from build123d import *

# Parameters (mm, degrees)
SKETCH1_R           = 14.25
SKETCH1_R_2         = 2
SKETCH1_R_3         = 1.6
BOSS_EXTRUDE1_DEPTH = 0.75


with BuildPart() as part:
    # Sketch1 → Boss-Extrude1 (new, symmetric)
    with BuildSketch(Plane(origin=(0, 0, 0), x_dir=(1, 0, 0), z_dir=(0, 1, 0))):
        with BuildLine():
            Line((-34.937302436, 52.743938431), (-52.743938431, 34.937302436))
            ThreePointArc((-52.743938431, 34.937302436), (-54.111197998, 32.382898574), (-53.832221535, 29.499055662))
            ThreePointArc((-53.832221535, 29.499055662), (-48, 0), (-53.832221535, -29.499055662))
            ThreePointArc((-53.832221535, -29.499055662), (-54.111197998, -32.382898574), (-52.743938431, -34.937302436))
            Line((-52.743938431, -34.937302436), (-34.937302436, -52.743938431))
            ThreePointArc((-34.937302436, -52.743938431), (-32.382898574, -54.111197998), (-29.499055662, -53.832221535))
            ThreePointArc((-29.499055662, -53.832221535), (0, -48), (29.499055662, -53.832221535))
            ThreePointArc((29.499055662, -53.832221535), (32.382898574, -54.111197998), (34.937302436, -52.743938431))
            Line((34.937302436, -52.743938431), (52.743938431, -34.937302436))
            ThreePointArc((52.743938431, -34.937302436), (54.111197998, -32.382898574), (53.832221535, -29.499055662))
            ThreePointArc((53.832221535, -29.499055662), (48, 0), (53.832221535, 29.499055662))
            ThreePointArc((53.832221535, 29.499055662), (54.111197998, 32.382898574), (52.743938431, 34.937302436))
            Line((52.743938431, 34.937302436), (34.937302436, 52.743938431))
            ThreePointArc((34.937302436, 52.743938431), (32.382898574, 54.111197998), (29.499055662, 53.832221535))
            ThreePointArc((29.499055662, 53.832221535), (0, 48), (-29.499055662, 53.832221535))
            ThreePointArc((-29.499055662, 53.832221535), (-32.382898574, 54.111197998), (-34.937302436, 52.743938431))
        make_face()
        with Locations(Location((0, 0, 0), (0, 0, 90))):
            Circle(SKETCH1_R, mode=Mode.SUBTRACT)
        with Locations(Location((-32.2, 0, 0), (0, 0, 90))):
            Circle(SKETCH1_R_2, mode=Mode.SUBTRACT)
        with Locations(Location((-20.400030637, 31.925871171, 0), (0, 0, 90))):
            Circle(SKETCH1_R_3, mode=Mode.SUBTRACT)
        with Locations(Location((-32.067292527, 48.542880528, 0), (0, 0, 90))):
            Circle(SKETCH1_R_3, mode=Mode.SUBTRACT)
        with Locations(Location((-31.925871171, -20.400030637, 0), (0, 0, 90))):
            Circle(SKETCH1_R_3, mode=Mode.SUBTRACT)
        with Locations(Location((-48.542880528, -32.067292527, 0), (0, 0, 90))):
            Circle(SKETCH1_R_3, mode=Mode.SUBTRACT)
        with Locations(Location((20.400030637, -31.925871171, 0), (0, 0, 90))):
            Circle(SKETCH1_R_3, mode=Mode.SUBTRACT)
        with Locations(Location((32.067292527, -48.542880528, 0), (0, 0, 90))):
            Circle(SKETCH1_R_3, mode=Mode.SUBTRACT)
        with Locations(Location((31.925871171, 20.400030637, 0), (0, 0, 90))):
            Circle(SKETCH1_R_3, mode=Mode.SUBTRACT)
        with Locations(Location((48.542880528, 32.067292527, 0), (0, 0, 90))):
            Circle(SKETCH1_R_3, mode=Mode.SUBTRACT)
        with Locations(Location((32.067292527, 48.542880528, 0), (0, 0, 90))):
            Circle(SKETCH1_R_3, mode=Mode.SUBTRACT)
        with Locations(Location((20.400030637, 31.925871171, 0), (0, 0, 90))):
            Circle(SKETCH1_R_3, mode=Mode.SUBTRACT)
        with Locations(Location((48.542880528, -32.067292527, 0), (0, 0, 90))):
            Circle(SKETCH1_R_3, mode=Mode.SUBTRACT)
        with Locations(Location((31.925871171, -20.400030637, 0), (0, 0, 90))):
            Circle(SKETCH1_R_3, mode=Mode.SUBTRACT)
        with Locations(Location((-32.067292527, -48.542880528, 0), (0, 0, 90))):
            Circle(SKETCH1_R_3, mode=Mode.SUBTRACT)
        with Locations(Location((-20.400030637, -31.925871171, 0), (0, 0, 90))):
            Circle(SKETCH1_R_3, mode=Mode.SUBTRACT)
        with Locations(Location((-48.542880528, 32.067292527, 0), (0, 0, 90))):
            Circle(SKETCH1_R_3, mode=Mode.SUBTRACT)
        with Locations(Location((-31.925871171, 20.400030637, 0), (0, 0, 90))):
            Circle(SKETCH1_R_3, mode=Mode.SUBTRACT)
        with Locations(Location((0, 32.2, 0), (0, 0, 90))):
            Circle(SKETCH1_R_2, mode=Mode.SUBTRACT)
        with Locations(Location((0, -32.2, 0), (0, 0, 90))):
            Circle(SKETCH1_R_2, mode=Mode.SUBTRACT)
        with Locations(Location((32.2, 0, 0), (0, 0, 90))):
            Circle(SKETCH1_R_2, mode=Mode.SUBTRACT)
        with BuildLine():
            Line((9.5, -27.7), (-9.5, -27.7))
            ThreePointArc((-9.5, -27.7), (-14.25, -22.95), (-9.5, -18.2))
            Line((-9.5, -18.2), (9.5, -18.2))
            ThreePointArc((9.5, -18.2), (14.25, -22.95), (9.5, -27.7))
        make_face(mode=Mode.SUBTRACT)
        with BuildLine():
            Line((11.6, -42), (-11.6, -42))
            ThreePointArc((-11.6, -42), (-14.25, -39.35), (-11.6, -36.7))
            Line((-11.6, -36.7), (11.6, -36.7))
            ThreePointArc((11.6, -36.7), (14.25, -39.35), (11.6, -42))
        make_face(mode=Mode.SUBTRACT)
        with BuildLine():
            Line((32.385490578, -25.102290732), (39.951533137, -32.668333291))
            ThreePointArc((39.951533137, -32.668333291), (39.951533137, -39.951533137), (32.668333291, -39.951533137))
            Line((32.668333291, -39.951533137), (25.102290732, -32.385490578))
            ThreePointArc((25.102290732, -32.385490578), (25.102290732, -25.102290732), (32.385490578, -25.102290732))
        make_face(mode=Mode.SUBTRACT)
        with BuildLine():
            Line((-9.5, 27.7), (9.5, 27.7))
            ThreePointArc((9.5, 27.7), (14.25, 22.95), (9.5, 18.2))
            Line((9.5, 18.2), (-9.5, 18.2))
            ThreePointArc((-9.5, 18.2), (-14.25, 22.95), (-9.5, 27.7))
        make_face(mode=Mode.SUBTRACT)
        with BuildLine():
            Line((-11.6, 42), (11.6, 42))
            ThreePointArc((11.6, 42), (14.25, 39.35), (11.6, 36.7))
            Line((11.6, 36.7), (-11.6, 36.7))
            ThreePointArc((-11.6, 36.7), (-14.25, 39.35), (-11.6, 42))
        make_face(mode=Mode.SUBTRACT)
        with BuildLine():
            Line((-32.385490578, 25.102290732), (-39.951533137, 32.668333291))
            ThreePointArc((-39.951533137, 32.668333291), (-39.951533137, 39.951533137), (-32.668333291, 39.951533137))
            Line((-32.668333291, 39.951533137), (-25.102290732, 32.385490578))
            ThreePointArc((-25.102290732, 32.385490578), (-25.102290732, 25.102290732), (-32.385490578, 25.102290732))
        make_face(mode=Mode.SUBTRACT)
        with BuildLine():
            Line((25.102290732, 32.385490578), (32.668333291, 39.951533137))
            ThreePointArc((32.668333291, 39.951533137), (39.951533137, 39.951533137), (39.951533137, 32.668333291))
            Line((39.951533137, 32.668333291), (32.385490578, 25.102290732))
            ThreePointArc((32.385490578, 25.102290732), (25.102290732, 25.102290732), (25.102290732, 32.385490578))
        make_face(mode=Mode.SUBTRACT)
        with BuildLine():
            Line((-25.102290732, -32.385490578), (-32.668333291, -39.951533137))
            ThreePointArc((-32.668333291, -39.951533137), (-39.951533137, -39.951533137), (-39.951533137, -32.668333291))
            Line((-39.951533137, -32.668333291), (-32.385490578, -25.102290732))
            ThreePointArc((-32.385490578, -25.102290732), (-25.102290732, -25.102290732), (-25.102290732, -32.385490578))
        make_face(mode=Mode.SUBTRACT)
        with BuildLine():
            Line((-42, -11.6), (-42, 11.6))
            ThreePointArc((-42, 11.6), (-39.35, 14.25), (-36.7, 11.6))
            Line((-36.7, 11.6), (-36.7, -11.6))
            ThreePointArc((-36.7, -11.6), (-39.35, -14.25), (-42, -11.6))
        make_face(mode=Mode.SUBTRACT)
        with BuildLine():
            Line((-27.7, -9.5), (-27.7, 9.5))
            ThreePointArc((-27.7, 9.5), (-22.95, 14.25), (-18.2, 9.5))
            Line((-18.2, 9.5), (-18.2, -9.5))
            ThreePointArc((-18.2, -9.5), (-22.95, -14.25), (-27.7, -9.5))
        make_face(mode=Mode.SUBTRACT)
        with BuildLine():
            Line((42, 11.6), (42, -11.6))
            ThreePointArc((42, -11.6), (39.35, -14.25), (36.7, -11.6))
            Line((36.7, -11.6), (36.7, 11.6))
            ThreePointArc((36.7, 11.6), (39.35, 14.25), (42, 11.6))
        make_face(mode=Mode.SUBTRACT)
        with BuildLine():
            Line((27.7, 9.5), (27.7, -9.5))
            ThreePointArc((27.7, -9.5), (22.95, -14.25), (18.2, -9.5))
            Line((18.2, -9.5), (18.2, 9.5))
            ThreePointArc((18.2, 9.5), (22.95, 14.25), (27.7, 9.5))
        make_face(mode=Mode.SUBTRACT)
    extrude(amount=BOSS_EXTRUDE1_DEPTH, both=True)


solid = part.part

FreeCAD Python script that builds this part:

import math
import FreeCAD as App
import Part
import Sketcher
Q = App.Units.Quantity

doc = App.newDocument("Part")
body = doc.addObject("PartDesign::Body", "Body")

# Sketch on XZ plane
sketch1 = body.newObject("Sketcher::SketchObject", "Sketch")
sketch1.AttachmentSupport = (doc.getObject("XZ_Plane"), [""])
sketch1.MapMode = "FlatFace"
sketch1.addGeometry(Part.LineSegment(App.Vector(-34.9, -52.7, 0), App.Vector(-52.7, -34.9, 0)), False)
sketch1.addGeometry(Part.ArcOfCircle(Part.Circle(App.Vector(-49.2, -31.4, 0), App.Vector(0, 0, 1), 5), math.radians(158), math.radians(225)), False)
sketch1.addGeometry(Part.ArcOfCircle(Part.Circle(App.Vector(-125.5, 0, 0), App.Vector(0, 0, 1), 77.5), math.radians(-22), math.radians(22)), False)
sketch1.addGeometry(Part.ArcOfCircle(Part.Circle(App.Vector(-49.2, 31.4, 0), App.Vector(0, 0, 1), 5), math.radians(135), math.radians(202)), False)
sketch1.addGeometry(Part.LineSegment(App.Vector(-52.7, 34.9, 0), App.Vector(-34.9, 52.7, 0)), False)
sketch1.addGeometry(Part.ArcOfCircle(Part.Circle(App.Vector(-31.4, 49.2, 0), App.Vector(0, 0, 1), 5), math.radians(68), math.radians(135)), False)
sketch1.addGeometry(Part.ArcOfCircle(Part.Circle(App.Vector(0, 125.5, 0), App.Vector(0, 0, 1), 77.5), math.radians(-112), math.radians(-68)), False)
sketch1.addGeometry(Part.ArcOfCircle(Part.Circle(App.Vector(31.4, 49.2, 0), App.Vector(0, 0, 1), 5), math.radians(45), math.radians(112)), False)
sketch1.addGeometry(Part.LineSegment(App.Vector(34.9, 52.7, 0), App.Vector(52.7, 34.9, 0)), False)
sketch1.addGeometry(Part.ArcOfCircle(Part.Circle(App.Vector(49.2, 31.4, 0), App.Vector(0, 0, 1), 5), math.radians(-22), math.radians(45)), False)
sketch1.addGeometry(Part.ArcOfCircle(Part.Circle(App.Vector(125.5, 0, 0), App.Vector(0, 0, 1), 77.5), math.radians(158), math.radians(202)), False)
sketch1.addGeometry(Part.ArcOfCircle(Part.Circle(App.Vector(49.2, -31.4, 0), App.Vector(0, 0, 1), 5), math.radians(-45), math.radians(22)), False)
sketch1.addGeometry(Part.LineSegment(App.Vector(52.7, -34.9, 0), App.Vector(34.9, -52.7, 0)), False)
sketch1.addGeometry(Part.ArcOfCircle(Part.Circle(App.Vector(31.4, -49.2, 0), App.Vector(0, 0, 1), 5), math.radians(-112), math.radians(-45)), False)
sketch1.addGeometry(Part.ArcOfCircle(Part.Circle(App.Vector(0, -125.5, 0), App.Vector(0, 0, 1), 77.5), math.radians(68), math.radians(112)), False)
sketch1.addGeometry(Part.ArcOfCircle(Part.Circle(App.Vector(-31.4, -49.2, 0), App.Vector(0, 0, 1), 5), math.radians(-135), math.radians(-68)), False)
sketch1.addGeometry(Part.Circle(App.Vector(-32.1, 48.5, 0), App.Vector(0, 0, 1), 1.6), False)
sketch1.addGeometry(Part.Circle(App.Vector(-48.5, 32.1, 0), App.Vector(0, 0, 1), 1.6), False)
sketch1.addGeometry(Part.ArcOfCircle(Part.Circle(App.Vector(-28.7, 28.7, 0), App.Vector(0, 0, 1), 5.2), math.radians(-135), math.radians(45)), False)
sketch1.addGeometry(Part.LineSegment(App.Vector(-25.1, 32.4, 0), App.Vector(-32.7, 40, 0)), False)
sketch1.addGeometry(Part.ArcOfCircle(Part.Circle(App.Vector(-36.3, 36.3, 0), App.Vector(0, 0, 1), 5.2), math.radians(45), math.radians(225)), False)
sketch1.addGeometry(Part.LineSegment(App.Vector(-40, 32.7, 0), App.Vector(-32.4, 25.1, 0)), False)
sketch1.addGeometry(Part.Circle(App.Vector(-20.4, 31.9, 0), App.Vector(0, 0, 1), 1.6), False)
sketch1.addGeometry(Part.Circle(App.Vector(-31.9, 20.4, 0), App.Vector(0, 0, 1), 1.6), False)
sketch1.addGeometry(Part.ArcOfCircle(Part.Circle(App.Vector(11.6, 39.4, 0), App.Vector(0, 0, 1), 2.6), math.radians(-90), math.radians(90)), False)
sketch1.addGeometry(Part.LineSegment(App.Vector(11.6, 42, 0), App.Vector(-11.6, 42, 0)), False)
sketch1.addGeometry(Part.ArcOfCircle(Part.Circle(App.Vector(-11.6, 39.4, 0), App.Vector(0, 0, 1), 2.6), math.radians(90), math.radians(270)), False)
sketch1.addGeometry(Part.LineSegment(App.Vector(-11.6, 36.7, 0), App.Vector(11.6, 36.7, 0)), False)
sketch1.addGeometry(Part.Circle(App.Vector(0, 32.2, 0), App.Vector(0, 0, 1), 2), False)
sketch1.addGeometry(Part.Circle(App.Vector(20.4, 31.9, 0), App.Vector(0, 0, 1), 1.6), False)
sketch1.addGeometry(Part.Circle(App.Vector(32.1, 48.5, 0), App.Vector(0, 0, 1), 1.6), False)
sketch1.addGeometry(Part.ArcOfCircle(Part.Circle(App.Vector(28.7, 28.7, 0), App.Vector(0, 0, 1), 5.2), math.radians(135), math.radians(315)), False)
sketch1.addGeometry(Part.LineSegment(App.Vector(32.4, 25.1, 0), App.Vector(40, 32.7, 0)), False)
sketch1.addGeometry(Part.ArcOfCircle(Part.Circle(App.Vector(36.3, 36.3, 0), App.Vector(0, 0, 1), 5.2), math.radians(-45), math.radians(135)), False)
sketch1.addGeometry(Part.LineSegment(App.Vector(32.7, 40, 0), App.Vector(25.1, 32.4, 0)), False)
sketch1.addGeometry(Part.Circle(App.Vector(48.5, 32.1, 0), App.Vector(0, 0, 1), 1.6), False)
sketch1.addGeometry(Part.ArcOfCircle(Part.Circle(App.Vector(9.5, 22.9, 0), App.Vector(0, 0, 1), 4.8), math.radians(-90), math.radians(90)), False)
sketch1.addGeometry(Part.LineSegment(App.Vector(9.5, 27.7, 0), App.Vector(-9.5, 27.7, 0)), False)
sketch1.addGeometry(Part.ArcOfCircle(Part.Circle(App.Vector(-9.5, 22.9, 0), App.Vector(0, 0, 1), 4.8), math.radians(90), math.radians(270)), False)
sketch1.addGeometry(Part.LineSegment(App.Vector(-9.5, 18.2, 0), App.Vector(9.5, 18.2, 0)), False)
sketch1.addGeometry(Part.Circle(App.Vector(31.9, 20.4, 0), App.Vector(0, 0, 1), 1.6), False)
sketch1.addGeometry(Part.ArcOfCircle(Part.Circle(App.Vector(-39.4, 11.6, 0), App.Vector(0, 0, 1), 2.6), math.radians(0), math.radians(180)), False)
sketch1.addGeometry(Part.LineSegment(App.Vector(-42, 11.6, 0), App.Vector(-42, -11.6, 0)), False)
sketch1.addGeometry(Part.ArcOfCircle(Part.Circle(App.Vector(-39.4, -11.6, 0), App.Vector(0, 0, 1), 2.6), math.radians(180), math.radians(360)), False)
sketch1.addGeometry(Part.LineSegment(App.Vector(-36.7, -11.6, 0), App.Vector(-36.7, 11.6, 0)), False)
sketch1.addGeometry(Part.Circle(App.Vector(-32.2, 0, 0), App.Vector(0, 0, 1), 2), False)
sketch1.addGeometry(Part.Circle(App.Vector(-31.9, -20.4, 0), App.Vector(0, 0, 1), 1.6), False)
sketch1.addGeometry(Part.ArcOfCircle(Part.Circle(App.Vector(-22.9, 9.5, 0), App.Vector(0, 0, 1), 4.8), math.radians(0), math.radians(180)), False)
sketch1.addGeometry(Part.LineSegment(App.Vector(-27.7, 9.5, 0), App.Vector(-27.7, -9.5, 0)), False)
sketch1.addGeometry(Part.ArcOfCircle(Part.Circle(App.Vector(-22.9, -9.5, 0), App.Vector(0, 0, 1), 4.8), math.radians(180), math.radians(360)), False)
sketch1.addGeometry(Part.LineSegment(App.Vector(-18.2, -9.5, 0), App.Vector(-18.2, 9.5, 0)), False)
sketch1.addGeometry(Part.Circle(App.Vector(-48.5, -32.1, 0), App.Vector(0, 0, 1), 1.6), False)
sketch1.addGeometry(Part.ArcOfCircle(Part.Circle(App.Vector(-28.7, -28.7, 0), App.Vector(0, 0, 1), 5.2), math.radians(-45), math.radians(135)), False)
sketch1.addGeometry(Part.LineSegment(App.Vector(-32.4, -25.1, 0), App.Vector(-40, -32.7, 0)), False)
sketch1.addGeometry(Part.ArcOfCircle(Part.Circle(App.Vector(-36.3, -36.3, 0), App.Vector(0, 0, 1), 5.2), math.radians(135), math.radians(315)), False)
sketch1.addGeometry(Part.LineSegment(App.Vector(-32.7, -40, 0), App.Vector(-25.1, -32.4, 0)), False)
sketch1.addGeometry(Part.Circle(App.Vector(-32.1, -48.5, 0), App.Vector(0, 0, 1), 1.6), False)
sketch1.addGeometry(Part.Circle(App.Vector(-20.4, -31.9, 0), App.Vector(0, 0, 1), 1.6), False)
sketch1.addGeometry(Part.Circle(App.Vector(0, 0, 0), App.Vector(0, 0, 1), 14.2), False)
sketch1.addGeometry(Part.ArcOfCircle(Part.Circle(App.Vector(22.9, -9.5, 0), App.Vector(0, 0, 1), 4.8), math.radians(180), math.radians(360)), False)
sketch1.addGeometry(Part.LineSegment(App.Vector(27.7, -9.5, 0), App.Vector(27.7, 9.5, 0)), False)
sketch1.addGeometry(Part.ArcOfCircle(Part.Circle(App.Vector(22.9, 9.5, 0), App.Vector(0, 0, 1), 4.8), math.radians(0), math.radians(180)), False)
sketch1.addGeometry(Part.LineSegment(App.Vector(18.2, 9.5, 0), App.Vector(18.2, -9.5, 0)), False)
sketch1.addGeometry(Part.ArcOfCircle(Part.Circle(App.Vector(-9.5, -22.9, 0), App.Vector(0, 0, 1), 4.8), math.radians(90), math.radians(270)), False)
sketch1.addGeometry(Part.LineSegment(App.Vector(-9.5, -27.7, 0), App.Vector(9.5, -27.7, 0)), False)
sketch1.addGeometry(Part.ArcOfCircle(Part.Circle(App.Vector(9.5, -22.9, 0), App.Vector(0, 0, 1), 4.8), math.radians(-90), math.radians(90)), False)
sketch1.addGeometry(Part.LineSegment(App.Vector(9.5, -18.2, 0), App.Vector(-9.5, -18.2, 0)), False)
sketch1.addGeometry(Part.Circle(App.Vector(32.2, 0, 0), App.Vector(0, 0, 1), 2), False)
sketch1.addGeometry(Part.ArcOfCircle(Part.Circle(App.Vector(39.4, -11.6, 0), App.Vector(0, 0, 1), 2.6), math.radians(180), math.radians(360)), False)
sketch1.addGeometry(Part.LineSegment(App.Vector(42, -11.6, 0), App.Vector(42, 11.6, 0)), False)
sketch1.addGeometry(Part.ArcOfCircle(Part.Circle(App.Vector(39.4, 11.6, 0), App.Vector(0, 0, 1), 2.6), math.radians(0), math.radians(180)), False)
sketch1.addGeometry(Part.LineSegment(App.Vector(36.7, 11.6, 0), App.Vector(36.7, -11.6, 0)), False)
sketch1.addGeometry(Part.Circle(App.Vector(31.9, -20.4, 0), App.Vector(0, 0, 1), 1.6), False)
sketch1.addGeometry(Part.Circle(App.Vector(0, -32.2, 0), App.Vector(0, 0, 1), 2), False)
sketch1.addGeometry(Part.Circle(App.Vector(20.4, -31.9, 0), App.Vector(0, 0, 1), 1.6), False)
sketch1.addGeometry(Part.ArcOfCircle(Part.Circle(App.Vector(-11.6, -39.4, 0), App.Vector(0, 0, 1), 2.6), math.radians(90), math.radians(270)), False)
sketch1.addGeometry(Part.LineSegment(App.Vector(-11.6, -42, 0), App.Vector(11.6, -42, 0)), False)
sketch1.addGeometry(Part.ArcOfCircle(Part.Circle(App.Vector(11.6, -39.4, 0), App.Vector(0, 0, 1), 2.6), math.radians(-90), math.radians(90)), False)
sketch1.addGeometry(Part.LineSegment(App.Vector(11.6, -36.7, 0), App.Vector(-11.6, -36.7, 0)), False)
sketch1.addGeometry(Part.ArcOfCircle(Part.Circle(App.Vector(28.7, -28.7, 0), App.Vector(0, 0, 1), 5.2), math.radians(45), math.radians(225)), False)
sketch1.addGeometry(Part.LineSegment(App.Vector(25.1, -32.4, 0), App.Vector(32.7, -40, 0)), False)
sketch1.addGeometry(Part.ArcOfCircle(Part.Circle(App.Vector(36.3, -36.3, 0), App.Vector(0, 0, 1), 5.2), math.radians(-135), math.radians(45)), False)
sketch1.addGeometry(Part.LineSegment(App.Vector(40, -32.7, 0), App.Vector(32.4, -25.1, 0)), False)
sketch1.addGeometry(Part.Circle(App.Vector(48.5, -32.1, 0), App.Vector(0, 0, 1), 1.6), False)
sketch1.addGeometry(Part.Circle(App.Vector(32.1, -48.5, 0), App.Vector(0, 0, 1), 1.6), False)
sketch1.addConstraint(Sketcher.Constraint("Tangent", 0, 2, 1, 2))
sketch1.addConstraint(Sketcher.Constraint("Tangent", 1, 1, 2, 1))
sketch1.addConstraint(Sketcher.Constraint("Tangent", 2, 2, 3, 2))
sketch1.addConstraint(Sketcher.Constraint("Tangent", 3, 1, 4, 1))
sketch1.addConstraint(Sketcher.Constraint("Tangent", 4, 2, 5, 2))
sketch1.addConstraint(Sketcher.Constraint("Tangent", 5, 1, 6, 1))
sketch1.addConstraint(Sketcher.Constraint("Tangent", 6, 2, 7, 2))
sketch1.addConstraint(Sketcher.Constraint("Tangent", 7, 1, 8, 1))
sketch1.addConstraint(Sketcher.Constraint("Tangent", 8, 2, 9, 2))
sketch1.addConstraint(Sketcher.Constraint("Tangent", 9, 1, 10, 1))
sketch1.addConstraint(Sketcher.Constraint("Tangent", 10, 2, 11, 2))
sketch1.addConstraint(Sketcher.Constraint("Tangent", 11, 1, 12, 1))
sketch1.addConstraint(Sketcher.Constraint("Tangent", 12, 2, 13, 2))
sketch1.addConstraint(Sketcher.Constraint("Tangent", 13, 1, 14, 1))
sketch1.addConstraint(Sketcher.Constraint("Tangent", 14, 2, 15, 2))
sketch1.addConstraint(Sketcher.Constraint("Tangent", 15, 1, 0, 1))
sketch1.addConstraint(Sketcher.Constraint("Tangent", 18, 2, 19, 1))
sketch1.addConstraint(Sketcher.Constraint("Tangent", 19, 2, 20, 1))
sketch1.addConstraint(Sketcher.Constraint("Tangent", 20, 2, 21, 1))
sketch1.addConstraint(Sketcher.Constraint("Tangent", 21, 2, 18, 1))
sketch1.addConstraint(Sketcher.Constraint("Tangent", 24, 2, 25, 1))
sketch1.addConstraint(Sketcher.Constraint("Tangent", 25, 2, 26, 1))
sketch1.addConstraint(Sketcher.Constraint("Tangent", 26, 2, 27, 1))
sketch1.addConstraint(Sketcher.Constraint("Tangent", 27, 2, 24, 1))
sketch1.addConstraint(Sketcher.Constraint("Tangent", 31, 2, 32, 1))
sketch1.addConstraint(Sketcher.Constraint("Tangent", 32, 2, 33, 1))
sketch1.addConstraint(Sketcher.Constraint("Tangent", 33, 2, 34, 1))
sketch1.addConstraint(Sketcher.Constraint("Tangent", 34, 2, 31, 1))
sketch1.addConstraint(Sketcher.Constraint("Tangent", 36, 2, 37, 1))
sketch1.addConstraint(Sketcher.Constraint("Tangent", 37, 2, 38, 1))
sketch1.addConstraint(Sketcher.Constraint("Tangent", 38, 2, 39, 1))
sketch1.addConstraint(Sketcher.Constraint("Tangent", 39, 2, 36, 1))
sketch1.addConstraint(Sketcher.Constraint("Tangent", 41, 2, 42, 1))
sketch1.addConstraint(Sketcher.Constraint("Tangent", 42, 2, 43, 1))
sketch1.addConstraint(Sketcher.Constraint("Tangent", 43, 2, 44, 1))
sketch1.addConstraint(Sketcher.Constraint("Tangent", 44, 2, 41, 1))
sketch1.addConstraint(Sketcher.Constraint("Tangent", 47, 2, 48, 1))
sketch1.addConstraint(Sketcher.Constraint("Tangent", 48, 2, 49, 1))
sketch1.addConstraint(Sketcher.Constraint("Tangent", 49, 2, 50, 1))
sketch1.addConstraint(Sketcher.Constraint("Tangent", 50, 2, 47, 1))
sketch1.addConstraint(Sketcher.Constraint("Tangent", 52, 2, 53, 1))
sketch1.addConstraint(Sketcher.Constraint("Tangent", 53, 2, 54, 1))
sketch1.addConstraint(Sketcher.Constraint("Tangent", 54, 2, 55, 1))
sketch1.addConstraint(Sketcher.Constraint("Tangent", 55, 2, 52, 1))
sketch1.addConstraint(Sketcher.Constraint("Tangent", 59, 2, 60, 1))
sketch1.addConstraint(Sketcher.Constraint("Tangent", 60, 2, 61, 1))
sketch1.addConstraint(Sketcher.Constraint("Tangent", 61, 2, 62, 1))
sketch1.addConstraint(Sketcher.Constraint("Tangent", 62, 2, 59, 1))
sketch1.addConstraint(Sketcher.Constraint("Tangent", 63, 2, 64, 1))
sketch1.addConstraint(Sketcher.Constraint("Tangent", 64, 2, 65, 1))
sketch1.addConstraint(Sketcher.Constraint("Tangent", 65, 2, 66, 1))
sketch1.addConstraint(Sketcher.Constraint("Tangent", 66, 2, 63, 1))
sketch1.addConstraint(Sketcher.Constraint("Tangent", 68, 2, 69, 1))
sketch1.addConstraint(Sketcher.Constraint("Tangent", 69, 2, 70, 1))
sketch1.addConstraint(Sketcher.Constraint("Tangent", 70, 2, 71, 1))
sketch1.addConstraint(Sketcher.Constraint("Tangent", 71, 2, 68, 1))
sketch1.addConstraint(Sketcher.Constraint("Tangent", 75, 2, 76, 1))
sketch1.addConstraint(Sketcher.Constraint("Tangent", 76, 2, 77, 1))
sketch1.addConstraint(Sketcher.Constraint("Tangent", 77, 2, 78, 1))
sketch1.addConstraint(Sketcher.Constraint("Tangent", 78, 2, 75, 1))
sketch1.addConstraint(Sketcher.Constraint("Tangent", 79, 2, 80, 1))
sketch1.addConstraint(Sketcher.Constraint("Tangent", 80, 2, 81, 1))
sketch1.addConstraint(Sketcher.Constraint("Tangent", 81, 2, 82, 1))
sketch1.addConstraint(Sketcher.Constraint("Tangent", 82, 2, 79, 1))
sketch1.addConstraint(Sketcher.Constraint("Horizontal", 25))
sketch1.addConstraint(Sketcher.Constraint("Horizontal", 27))
sketch1.addConstraint(Sketcher.Constraint("Horizontal", 37))
sketch1.addConstraint(Sketcher.Constraint("Horizontal", 39))
sketch1.addConstraint(Sketcher.Constraint("Vertical", 42))
sketch1.addConstraint(Sketcher.Constraint("Vertical", 44))
sketch1.addConstraint(Sketcher.Constraint("Vertical", 48))
sketch1.addConstraint(Sketcher.Constraint("Vertical", 50))
sketch1.addConstraint(Sketcher.Constraint("Vertical", 60))
sketch1.addConstraint(Sketcher.Constraint("Vertical", 62))
sketch1.addConstraint(Sketcher.Constraint("Horizontal", 64))
sketch1.addConstraint(Sketcher.Constraint("Horizontal", 66))
sketch1.addConstraint(Sketcher.Constraint("Vertical", 69))
sketch1.addConstraint(Sketcher.Constraint("Vertical", 71))
sketch1.addConstraint(Sketcher.Constraint("Horizontal", 76))
sketch1.addConstraint(Sketcher.Constraint("Horizontal", 78))
sketch1.addConstraint(Sketcher.Constraint("Coincident", 58, 3, -1, 1))
sketch1.addConstraint(Sketcher.Constraint("Equal", 1, 3))
sketch1.addConstraint(Sketcher.Constraint("Equal", 3, 5))
sketch1.addConstraint(Sketcher.Constraint("Equal", 2, 6))
sketch1.addConstraint(Sketcher.Constraint("Equal", 5, 7))
sketch1.addConstraint(Sketcher.Constraint("Equal", 7, 9))
sketch1.addConstraint(Sketcher.Constraint("Equal", 6, 10))
sketch1.addConstraint(Sketcher.Constraint("Equal", 9, 11))
sketch1.addConstraint(Sketcher.Constraint("Equal", 11, 13))
sketch1.addConstraint(Sketcher.Constraint("Equal", 10, 14))
sketch1.addConstraint(Sketcher.Constraint("Equal", 13, 15))
sketch1.addConstraint(Sketcher.Constraint("Equal", 16, 17))
sketch1.addConstraint(Sketcher.Constraint("Equal", 18, 20))
sketch1.addConstraint(Sketcher.Constraint("Equal", 17, 22))
sketch1.addConstraint(Sketcher.Constraint("Equal", 22, 23))
sketch1.addConstraint(Sketcher.Constraint("Equal", 23, 29))
sketch1.addConstraint(Sketcher.Constraint("Equal", 29, 30))
sketch1.addConstraint(Sketcher.Constraint("Equal", 20, 31))
sketch1.addConstraint(Sketcher.Constraint("Equal", 31, 33))
sketch1.addConstraint(Sketcher.Constraint("Equal", 30, 35))
sketch1.addConstraint(Sketcher.Constraint("Equal", 35, 40))
sketch1.addConstraint(Sketcher.Constraint("Equal", 26, 41))
sketch1.addConstraint(Sketcher.Constraint("Equal", 28, 45))
sketch1.addConstraint(Sketcher.Constraint("Equal", 40, 46))
sketch1.addConstraint(Sketcher.Constraint("Equal", 38, 47))
sketch1.addConstraint(Sketcher.Constraint("Equal", 46, 51))
sketch1.addConstraint(Sketcher.Constraint("Equal", 33, 52))
sketch1.addConstraint(Sketcher.Constraint("Equal", 52, 54))
sketch1.addConstraint(Sketcher.Constraint("Equal", 51, 56))
sketch1.addConstraint(Sketcher.Constraint("Equal", 56, 57))
sketch1.addConstraint(Sketcher.Constraint("Equal", 49, 59))
sketch1.addConstraint(Sketcher.Constraint("Equal", 61, 63))
sketch1.addConstraint(Sketcher.Constraint("Equal", 45, 67))
sketch1.addConstraint(Sketcher.Constraint("Equal", 43, 68))
sketch1.addConstraint(Sketcher.Constraint("Equal", 57, 72))
sketch1.addConstraint(Sketcher.Constraint("Equal", 67, 73))
sketch1.addConstraint(Sketcher.Constraint("Equal", 72, 74))
sketch1.addConstraint(Sketcher.Constraint("Equal", 70, 75))
sketch1.addConstraint(Sketcher.Constraint("Equal", 54, 79))
sketch1.addConstraint(Sketcher.Constraint("Equal", 79, 81))
sketch1.addConstraint(Sketcher.Constraint("Equal", 74, 83))
sketch1.addConstraint(Sketcher.Constraint("Equal", 83, 84))
sketch1.addConstraint(Sketcher.Constraint("Symmetric", 1, 3, 9, 3, -1, 1))
sketch1.addConstraint(Sketcher.Constraint("Symmetric", 3, 3, 11, 3, -1, 1))
sketch1.addConstraint(Sketcher.Constraint("Symmetric", 5, 3, 13, 3, -1, 1))
sketch1.addConstraint(Sketcher.Constraint("Symmetric", 7, 3, 15, 3, -1, 1))
sketch1.addConstraint(Sketcher.Constraint("Symmetric", 40, 3, 46, 3, -1, 1))
sketch1.addConstraint(Sketcher.Constraint("Symmetric", 35, 3, 51, 3, -1, 1))
sketch1.addConstraint(Sketcher.Constraint("Symmetric", 31, 3, 52, 3, -1, 1))
sketch1.addConstraint(Sketcher.Constraint("Symmetric", 33, 3, 54, 3, -1, 1))
sketch1.addConstraint(Sketcher.Constraint("Symmetric", 30, 3, 56, 3, -1, 1))
sketch1.addConstraint(Sketcher.Constraint("Symmetric", 29, 3, 57, 3, -1, 1))
sketch1.addConstraint(Sketcher.Constraint("Symmetric", 47, 3, 59, 3, -1, 1))
sketch1.addConstraint(Sketcher.Constraint("Symmetric", 36, 3, 63, 3, -1, 1))
sketch1.addConstraint(Sketcher.Constraint("Symmetric", 45, 3, 67, 3, -1, 1))
sketch1.addConstraint(Sketcher.Constraint("Symmetric", 41, 3, 68, 3, -1, 1))
sketch1.addConstraint(Sketcher.Constraint("Symmetric", 23, 3, 72, 3, -1, 1))
sketch1.addConstraint(Sketcher.Constraint("Symmetric", 28, 3, 73, 3, -1, 1))
sketch1.addConstraint(Sketcher.Constraint("Symmetric", 22, 3, 74, 3, -1, 1))
sketch1.addConstraint(Sketcher.Constraint("Symmetric", 24, 3, 75, 3, -1, 1))
sketch1.addConstraint(Sketcher.Constraint("Symmetric", 18, 3, 79, 3, -1, 1))
sketch1.addConstraint(Sketcher.Constraint("Symmetric", 20, 3, 81, 3, -1, 1))
sketch1.addConstraint(Sketcher.Constraint("Symmetric", 17, 3, 83, 3, -1, 1))
sketch1.addConstraint(Sketcher.Constraint("Symmetric", 16, 3, 84, 3, -1, 1))
sketch1.addConstraint(Sketcher.Constraint("Symmetric", 5, 3, 7, 3, -2))
sketch1.addConstraint(Sketcher.Constraint("Symmetric", 3, 3, 9, 3, -2))
sketch1.addConstraint(Sketcher.Constraint("Symmetric", 22, 3, 29, 3, -2))
sketch1.addConstraint(Sketcher.Constraint("Symmetric", 16, 3, 30, 3, -2))
sketch1.addConstraint(Sketcher.Constraint("Symmetric", 18, 3, 31, 3, -2))
sketch1.addConstraint(Sketcher.Constraint("Symmetric", 20, 3, 33, 3, -2))
sketch1.addConstraint(Sketcher.Constraint("Symmetric", 17, 3, 35, 3, -2))
sketch1.addConstraint(Sketcher.Constraint("Symmetric", 23, 3, 40, 3, -2))
sketch1.addConstraint(Sketcher.Constraint("PointOnObject", 28, 3, -2))
sketch1.addConstraint(Sketcher.Constraint("PointOnObject", 45, 3, -1))
sketch1.addConstraint(Sketcher.Constraint("Perpendicular", 0, 4))
sketch1.addConstraint(Sketcher.Constraint("Perpendicular", 12, 19))
sketch1.addConstraint(Sketcher.Constraint("Horizontal", 49, 3, 59, 3))
sketch1.addConstraint(Sketcher.Constraint("Horizontal", 47, 3, 61, 3))
sketch1.addConstraint(Sketcher.Constraint("Horizontal", 43, 3, 68, 3))
sketch1.addConstraint(Sketcher.Constraint("Horizontal", 41, 3, 70, 3))
sketch1.addConstraint(Sketcher.Constraint("Vertical", 38, 3, 63, 3))
sketch1.addConstraint(Sketcher.Constraint("Vertical", 36, 3, 65, 3))
sketch1.addConstraint(Sketcher.Constraint("Vertical", 26, 3, 75, 3))
sketch1.addConstraint(Sketcher.Constraint("Vertical", 24, 3, 77, 3))
sketch1.addConstraint(Sketcher.Constraint("Equal", 78, 42))
sketch1.addConstraint(Sketcher.Constraint("Equal", 66, 48))
sketch1.addConstraint(Sketcher.Constraint("Diameter", 28, Q("4 mm")))
sketch1.addConstraint(Sketcher.Constraint("Radius", 1, Q("5 mm")))
sketch1.addConstraint(Sketcher.Constraint("Diameter", 16, Q("3.2 mm")))
sketch1.addConstraint(Sketcher.Constraint("Diameter", 58, Q("28.5 mm")))
sketch1.addConstraint(Sketcher.Constraint("DistanceX", 37, 2, 37, 1, Q("19 mm")))
sketch1.addConstraint(Sketcher.Constraint("Radius", 18, Q("5.15 mm")))
sketch1.addConstraint(Sketcher.Constraint("Radius", 24, Q("2.65 mm")))
sketch1.addConstraint(Sketcher.Constraint("Radius", 36, Q("4.75 mm")))
sketch1.addConstraint(Sketcher.Constraint("DistanceX", 25, 2, 25, 1, Q("23.2 mm")))
sketch1.addConstraint(Sketcher.Constraint("DistanceY", -1, 1, 24, 2, Q("42 mm")))
sketch1.addConstraint(Sketcher.Constraint("DistanceX", 41, 2, -1, 1, Q("42 mm")))
sketch1.addConstraint(Sketcher.Constraint("Distance", 19, Q("10.7 mm")))
sketch1.addConstraint(Sketcher.Constraint("DistanceY", -1, 1, 28, 3, Q("32.2 mm")))
sketch1.addConstraint(Sketcher.Constraint("DistanceX", 45, 3, -1, 1, Q("32.2 mm")))
sketch1.addConstraint(Sketcher.Constraint("DistanceY", -1, 1, 36, 2, Q("27.7 mm")))
sketch1.addConstraint(Sketcher.Constraint("DistanceX", 47, 2, -1, 1, Q("27.7 mm")))
sketch1.addConstraint(Sketcher.Constraint("Radius", 2, Q("77.518411 mm")))
sketch1.addConstraint(Sketcher.Constraint("DistanceY", 1, 3, -1, 1, Q("31.401769 mm")))
sketch1.addConstraint(Sketcher.Constraint("DistanceX", 2, 3, -1, 1, Q("125.518411 mm")))
sketch1.addConstraint(Sketcher.Constraint("DistanceX", 5, 3, -1, 1, Q("31.401769 mm")))
sketch1.addConstraint(Sketcher.Constraint("DistanceY", -1, 1, 16, 3, Q("48.542881 mm")))
sketch1.addConstraint(Sketcher.Constraint("DistanceX", 17, 3, -1, 1, Q("48.542881 mm")))
sketch1.addConstraint(Sketcher.Constraint("DistanceX", 18, 3, -1, 1, Q("28.743891 mm")))
sketch1.addConstraint(Sketcher.Constraint("DistanceY", -1, 1, 18, 3, Q("28.743891 mm")))
sketch1.addConstraint(Sketcher.Constraint("DistanceX", 22, 3, -1, 1, Q("20.400031 mm")))
sketch1.addConstraint(Sketcher.Constraint("DistanceY", -1, 1, 22, 3, Q("31.925871 mm")))
sketch1.addConstraint(Sketcher.Constraint("DistanceX", 23, 3, -1, 1, Q("31.925871 mm")))
sketch1.addConstraint(Sketcher.Constraint("DistanceY", -1, 1, 23, 3, Q("20.400031 mm")))
sketch1.addConstraint(Sketcher.Constraint("DistanceX", 16, 3, -1, 1, Q("32.067293 mm")))
sketch1.addConstraint(Sketcher.Constraint("DistanceY", -1, 1, 17, 3, Q("32.067293 mm")))
pad1 = body.newObject("PartDesign::Pad", "Pad")
pad1.Profile = sketch1
pad1.Length = 1.5
pad1.Midplane = True

doc.recompute()
